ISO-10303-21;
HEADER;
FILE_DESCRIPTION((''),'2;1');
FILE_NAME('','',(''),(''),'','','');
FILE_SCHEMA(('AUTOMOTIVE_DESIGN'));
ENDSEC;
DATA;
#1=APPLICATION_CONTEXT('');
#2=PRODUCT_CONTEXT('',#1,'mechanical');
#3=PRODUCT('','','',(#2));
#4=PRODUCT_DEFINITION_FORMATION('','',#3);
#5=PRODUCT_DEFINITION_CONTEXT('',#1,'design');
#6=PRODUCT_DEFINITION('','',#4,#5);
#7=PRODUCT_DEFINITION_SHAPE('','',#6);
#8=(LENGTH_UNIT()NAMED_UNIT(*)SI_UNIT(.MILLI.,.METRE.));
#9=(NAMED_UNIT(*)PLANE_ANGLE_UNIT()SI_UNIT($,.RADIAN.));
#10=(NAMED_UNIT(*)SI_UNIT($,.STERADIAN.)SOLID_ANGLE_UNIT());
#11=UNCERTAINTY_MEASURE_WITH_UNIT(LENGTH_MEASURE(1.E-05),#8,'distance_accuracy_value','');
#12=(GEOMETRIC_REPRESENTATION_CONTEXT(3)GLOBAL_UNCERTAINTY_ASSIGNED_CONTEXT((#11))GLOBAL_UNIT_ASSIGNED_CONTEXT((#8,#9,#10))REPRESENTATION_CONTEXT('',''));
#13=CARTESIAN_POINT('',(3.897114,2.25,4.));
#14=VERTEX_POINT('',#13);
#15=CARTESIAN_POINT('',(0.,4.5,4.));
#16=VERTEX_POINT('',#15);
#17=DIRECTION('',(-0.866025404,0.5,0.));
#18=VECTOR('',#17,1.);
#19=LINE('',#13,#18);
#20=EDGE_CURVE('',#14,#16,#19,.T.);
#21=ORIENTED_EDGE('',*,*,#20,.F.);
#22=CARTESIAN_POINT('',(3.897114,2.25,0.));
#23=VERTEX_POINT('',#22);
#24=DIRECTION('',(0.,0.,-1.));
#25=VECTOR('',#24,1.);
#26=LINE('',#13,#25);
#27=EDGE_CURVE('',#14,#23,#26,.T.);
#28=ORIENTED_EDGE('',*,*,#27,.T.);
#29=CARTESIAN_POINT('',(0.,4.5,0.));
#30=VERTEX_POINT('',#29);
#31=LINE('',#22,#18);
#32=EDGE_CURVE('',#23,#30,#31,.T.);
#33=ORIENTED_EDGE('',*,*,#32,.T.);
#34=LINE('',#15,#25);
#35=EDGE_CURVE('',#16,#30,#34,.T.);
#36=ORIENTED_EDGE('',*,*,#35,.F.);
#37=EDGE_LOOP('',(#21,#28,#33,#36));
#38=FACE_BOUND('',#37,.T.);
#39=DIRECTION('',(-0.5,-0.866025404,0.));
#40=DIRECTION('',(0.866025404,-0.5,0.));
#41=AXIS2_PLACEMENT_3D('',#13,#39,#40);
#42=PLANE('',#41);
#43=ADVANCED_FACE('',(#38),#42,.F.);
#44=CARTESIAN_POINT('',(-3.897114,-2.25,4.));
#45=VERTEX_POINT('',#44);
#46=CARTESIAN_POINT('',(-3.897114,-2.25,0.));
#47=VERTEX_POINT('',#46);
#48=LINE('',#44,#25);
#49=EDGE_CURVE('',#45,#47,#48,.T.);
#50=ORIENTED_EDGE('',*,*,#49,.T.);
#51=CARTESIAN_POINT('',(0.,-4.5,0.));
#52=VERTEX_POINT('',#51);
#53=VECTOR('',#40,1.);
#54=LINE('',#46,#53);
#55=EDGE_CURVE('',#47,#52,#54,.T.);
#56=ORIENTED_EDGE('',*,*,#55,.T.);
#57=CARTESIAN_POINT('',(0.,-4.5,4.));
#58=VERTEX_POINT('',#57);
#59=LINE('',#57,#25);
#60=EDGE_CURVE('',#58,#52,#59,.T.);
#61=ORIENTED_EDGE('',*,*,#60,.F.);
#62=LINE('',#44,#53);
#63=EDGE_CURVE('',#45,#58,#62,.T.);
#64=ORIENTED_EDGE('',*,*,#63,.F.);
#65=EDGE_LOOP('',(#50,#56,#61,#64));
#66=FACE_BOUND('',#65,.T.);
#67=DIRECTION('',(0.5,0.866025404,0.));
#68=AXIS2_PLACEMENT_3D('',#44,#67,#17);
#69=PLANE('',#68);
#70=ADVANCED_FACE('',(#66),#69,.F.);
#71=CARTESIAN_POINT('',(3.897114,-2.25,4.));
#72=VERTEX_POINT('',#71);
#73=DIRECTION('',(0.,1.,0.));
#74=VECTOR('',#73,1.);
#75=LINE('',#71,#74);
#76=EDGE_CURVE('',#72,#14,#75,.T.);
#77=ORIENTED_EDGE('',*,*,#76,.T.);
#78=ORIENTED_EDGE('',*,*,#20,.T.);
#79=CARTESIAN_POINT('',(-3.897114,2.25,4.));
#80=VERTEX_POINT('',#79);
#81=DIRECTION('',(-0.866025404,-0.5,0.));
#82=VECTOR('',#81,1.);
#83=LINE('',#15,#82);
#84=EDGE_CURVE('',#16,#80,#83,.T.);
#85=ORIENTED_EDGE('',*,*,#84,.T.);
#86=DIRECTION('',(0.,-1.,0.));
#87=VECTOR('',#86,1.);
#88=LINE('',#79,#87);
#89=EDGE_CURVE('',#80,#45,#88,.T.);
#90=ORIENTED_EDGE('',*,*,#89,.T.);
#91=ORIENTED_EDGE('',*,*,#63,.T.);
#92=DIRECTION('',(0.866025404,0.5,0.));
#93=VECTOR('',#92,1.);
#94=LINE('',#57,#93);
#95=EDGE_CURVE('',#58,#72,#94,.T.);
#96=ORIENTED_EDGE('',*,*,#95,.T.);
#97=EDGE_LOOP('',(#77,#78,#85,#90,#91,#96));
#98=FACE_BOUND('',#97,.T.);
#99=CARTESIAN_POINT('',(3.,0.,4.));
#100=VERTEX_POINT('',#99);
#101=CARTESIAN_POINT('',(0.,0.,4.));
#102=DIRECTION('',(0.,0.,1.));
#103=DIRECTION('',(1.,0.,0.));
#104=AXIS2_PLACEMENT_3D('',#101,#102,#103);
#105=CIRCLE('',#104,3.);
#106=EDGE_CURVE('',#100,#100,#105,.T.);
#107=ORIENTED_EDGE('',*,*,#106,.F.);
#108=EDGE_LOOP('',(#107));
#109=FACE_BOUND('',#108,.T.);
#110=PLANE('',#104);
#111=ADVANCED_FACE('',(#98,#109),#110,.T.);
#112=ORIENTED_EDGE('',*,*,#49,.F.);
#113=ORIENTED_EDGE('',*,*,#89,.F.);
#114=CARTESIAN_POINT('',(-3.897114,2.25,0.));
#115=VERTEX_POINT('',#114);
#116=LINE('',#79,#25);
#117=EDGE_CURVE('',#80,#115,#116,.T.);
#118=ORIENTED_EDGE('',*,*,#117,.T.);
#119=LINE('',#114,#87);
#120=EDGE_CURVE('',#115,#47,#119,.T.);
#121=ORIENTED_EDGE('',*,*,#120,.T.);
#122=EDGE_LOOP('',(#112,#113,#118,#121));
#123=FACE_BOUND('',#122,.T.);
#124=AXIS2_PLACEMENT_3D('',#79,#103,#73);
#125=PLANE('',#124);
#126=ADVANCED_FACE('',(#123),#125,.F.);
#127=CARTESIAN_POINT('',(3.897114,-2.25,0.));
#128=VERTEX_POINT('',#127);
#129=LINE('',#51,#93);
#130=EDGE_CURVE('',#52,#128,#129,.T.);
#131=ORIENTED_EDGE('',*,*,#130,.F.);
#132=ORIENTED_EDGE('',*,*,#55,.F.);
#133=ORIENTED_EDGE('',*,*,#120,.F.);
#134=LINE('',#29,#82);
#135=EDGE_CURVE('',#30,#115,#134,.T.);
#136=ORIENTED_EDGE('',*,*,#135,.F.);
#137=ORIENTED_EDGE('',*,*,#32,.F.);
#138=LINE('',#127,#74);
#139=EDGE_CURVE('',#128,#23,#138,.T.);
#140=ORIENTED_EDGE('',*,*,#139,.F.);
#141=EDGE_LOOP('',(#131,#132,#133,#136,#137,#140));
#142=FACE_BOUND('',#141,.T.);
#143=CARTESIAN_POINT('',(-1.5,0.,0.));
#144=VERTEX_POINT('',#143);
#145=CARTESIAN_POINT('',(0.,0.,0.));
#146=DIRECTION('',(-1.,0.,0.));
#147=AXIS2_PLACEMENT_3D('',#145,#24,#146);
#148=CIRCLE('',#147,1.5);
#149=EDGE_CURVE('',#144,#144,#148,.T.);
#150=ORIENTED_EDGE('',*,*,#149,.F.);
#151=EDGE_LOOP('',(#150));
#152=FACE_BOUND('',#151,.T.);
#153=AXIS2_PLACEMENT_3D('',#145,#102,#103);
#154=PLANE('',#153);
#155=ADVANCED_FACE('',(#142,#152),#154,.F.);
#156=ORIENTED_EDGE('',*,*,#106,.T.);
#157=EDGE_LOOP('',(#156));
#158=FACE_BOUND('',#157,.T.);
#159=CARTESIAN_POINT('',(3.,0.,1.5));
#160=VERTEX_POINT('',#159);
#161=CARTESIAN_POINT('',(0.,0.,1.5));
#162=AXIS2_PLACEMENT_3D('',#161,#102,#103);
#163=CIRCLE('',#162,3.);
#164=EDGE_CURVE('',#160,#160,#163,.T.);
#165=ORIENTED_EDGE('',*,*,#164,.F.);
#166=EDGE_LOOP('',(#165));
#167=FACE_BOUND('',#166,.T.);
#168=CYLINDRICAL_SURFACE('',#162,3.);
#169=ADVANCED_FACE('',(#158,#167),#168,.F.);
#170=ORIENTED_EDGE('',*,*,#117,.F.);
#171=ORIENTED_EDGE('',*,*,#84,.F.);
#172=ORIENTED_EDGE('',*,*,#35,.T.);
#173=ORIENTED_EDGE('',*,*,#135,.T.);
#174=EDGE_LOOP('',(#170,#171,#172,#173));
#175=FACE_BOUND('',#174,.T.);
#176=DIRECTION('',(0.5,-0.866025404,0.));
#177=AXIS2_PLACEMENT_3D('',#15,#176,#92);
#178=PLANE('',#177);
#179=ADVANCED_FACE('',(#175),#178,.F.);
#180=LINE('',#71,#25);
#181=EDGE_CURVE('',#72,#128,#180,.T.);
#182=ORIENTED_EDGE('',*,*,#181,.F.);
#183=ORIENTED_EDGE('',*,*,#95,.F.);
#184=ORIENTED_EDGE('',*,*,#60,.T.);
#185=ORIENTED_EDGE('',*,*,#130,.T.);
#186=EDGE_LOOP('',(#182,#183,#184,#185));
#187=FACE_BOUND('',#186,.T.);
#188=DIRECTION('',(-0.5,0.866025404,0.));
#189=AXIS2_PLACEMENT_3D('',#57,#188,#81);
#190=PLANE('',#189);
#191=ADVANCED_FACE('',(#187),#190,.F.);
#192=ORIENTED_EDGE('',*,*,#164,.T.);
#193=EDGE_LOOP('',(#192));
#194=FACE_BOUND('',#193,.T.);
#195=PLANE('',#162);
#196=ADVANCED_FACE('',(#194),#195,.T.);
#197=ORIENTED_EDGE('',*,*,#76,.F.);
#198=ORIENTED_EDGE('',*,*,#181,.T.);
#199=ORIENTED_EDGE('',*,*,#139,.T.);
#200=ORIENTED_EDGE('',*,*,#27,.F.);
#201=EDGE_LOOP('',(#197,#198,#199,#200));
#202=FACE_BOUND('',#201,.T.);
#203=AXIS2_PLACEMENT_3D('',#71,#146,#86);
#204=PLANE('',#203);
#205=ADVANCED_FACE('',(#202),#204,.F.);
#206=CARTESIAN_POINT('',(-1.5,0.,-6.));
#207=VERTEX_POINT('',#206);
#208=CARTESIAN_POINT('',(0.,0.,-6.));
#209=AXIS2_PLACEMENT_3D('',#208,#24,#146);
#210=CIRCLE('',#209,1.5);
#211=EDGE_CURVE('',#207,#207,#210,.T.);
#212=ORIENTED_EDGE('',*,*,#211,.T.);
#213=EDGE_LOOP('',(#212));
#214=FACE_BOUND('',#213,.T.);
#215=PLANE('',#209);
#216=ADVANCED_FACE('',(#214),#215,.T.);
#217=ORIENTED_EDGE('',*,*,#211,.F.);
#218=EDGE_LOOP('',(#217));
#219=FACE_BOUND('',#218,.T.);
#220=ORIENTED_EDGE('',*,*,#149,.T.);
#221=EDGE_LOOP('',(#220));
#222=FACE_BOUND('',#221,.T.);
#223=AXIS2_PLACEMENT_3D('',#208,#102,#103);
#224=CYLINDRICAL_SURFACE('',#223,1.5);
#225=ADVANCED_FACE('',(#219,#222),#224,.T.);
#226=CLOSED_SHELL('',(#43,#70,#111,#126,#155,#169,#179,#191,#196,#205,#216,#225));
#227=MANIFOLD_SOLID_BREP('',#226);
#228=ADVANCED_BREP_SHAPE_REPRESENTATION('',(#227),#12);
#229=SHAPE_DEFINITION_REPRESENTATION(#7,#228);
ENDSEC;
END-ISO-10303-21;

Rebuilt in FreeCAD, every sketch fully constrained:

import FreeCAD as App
import Part
import Sketcher
Q = App.Units.Quantity

doc = App.newDocument("Part")
body = doc.addObject("PartDesign::Body", "Body")

# Sketch on XY plane
sketch1 = body.newObject("Sketcher::SketchObject", "Sketch")
sketch1.AttachmentSupport = (doc.getObject("XY_Plane"), [""])
sketch1.MapMode = "FlatFace"
sketch1.addGeometry([
    Part.LineSegment(App.Vector(3.9, -2.2, 0), App.Vector(3.9, 2.2, 0)),  # 0
    Part.LineSegment(App.Vector(3.9, 2.2, 0), App.Vector(0, 4.5, 0)),  # 1
    Part.LineSegment(App.Vector(0, 4.5, 0), App.Vector(-3.9, 2.2, 0)),  # 2
    Part.LineSegment(App.Vector(-3.9, 2.2, 0), App.Vector(-3.9, -2.2, 0)),  # 3
    Part.LineSegment(App.Vector(-3.9, -2.2, 0), App.Vector(0, -4.5, 0)),  # 4
    Part.LineSegment(App.Vector(0, -4.5, 0), App.Vector(3.9, -2.2, 0)),  # 5
], False)
sketch1.addConstraint([
    Sketcher.Constraint("Coincident", 0, 2, 1, 1),
    Sketcher.Constraint("Coincident", 1, 2, 2, 1),
    Sketcher.Constraint("Coincident", 2, 2, 3, 1),
    Sketcher.Constraint("Coincident", 3, 2, 4, 1),
    Sketcher.Constraint("Coincident", 4, 2, 5, 1),
    Sketcher.Constraint("Coincident", 5, 2, 0, 1),
    Sketcher.Constraint("Vertical", 0),
    Sketcher.Constraint("Vertical", 3),
    Sketcher.Constraint("Symmetric", 0, 2, 3, 2, -1, 1),
    Sketcher.Constraint("Symmetric", 1, 2, 4, 2, -1, 1),
    Sketcher.Constraint("PointOnObject", 1, 2, -2),
    Sketcher.Constraint("Parallel", 2, 5),
    Sketcher.Constraint("Horizontal", 0, 2, 2, 2),
    Sketcher.Constraint("Angle", 1, Q("150 deg")),
    Sketcher.Constraint("DistanceY", 0, 1, 0, 2, Q("4.5 mm")),
    Sketcher.Constraint("DistanceY", 4, 2, 1, 2, Q("9 mm")),
])
pad1 = body.newObject("PartDesign::Pad", "Pad")
pad1.Profile = sketch1
pad1.Length = 4

# Sketch on XY plane
sketch2 = body.newObject("Sketcher::SketchObject", "Sketch001")
sketch2.AttachmentSupport = (doc.getObject("XY_Plane"), [""])
sketch2.MapMode = "FlatFace"
sketch2.addGeometry(Part.Circle(App.Vector(0, 0, 0), App.Vector(0, 0, 1), 1.5), False)
sketch2.addConstraint([
    Sketcher.Constraint("Coincident", 0, 3, -1, 1),
    Sketcher.Constraint("Diameter", 0, Q("3 mm")),
])
pad2 = body.newObject("PartDesign::Pad", "Pad001")
pad2.Profile = sketch2
pad2.Length = 6
pad2.Reversed = True

# Sketch on XY plane
sketch3 = body.newObject("Sketcher::SketchObject", "Sketch002")
sketch3.AttachmentSupport = (doc.getObject("XY_Plane"), [""])
sketch3.MapMode = "FlatFace"
sketch3.AttachmentOffset = App.Placement(App.Vector(0, 0, 4), App.Rotation())
sketch3.addGeometry(Part.Circle(App.Vector(0, 0, 0), App.Vector(0, 0, 1), 3), False)
sketch3.addConstraint([
    Sketcher.Constraint("Coincident", 0, 3, -1, 1),
    Sketcher.Constraint("Diameter", 0, Q("6 mm")),
])
pocket1 = body.newObject("PartDesign::Pocket", "Pocket")
pocket1.Profile = sketch3
pocket1.Length = 2.5

doc.recompute()
